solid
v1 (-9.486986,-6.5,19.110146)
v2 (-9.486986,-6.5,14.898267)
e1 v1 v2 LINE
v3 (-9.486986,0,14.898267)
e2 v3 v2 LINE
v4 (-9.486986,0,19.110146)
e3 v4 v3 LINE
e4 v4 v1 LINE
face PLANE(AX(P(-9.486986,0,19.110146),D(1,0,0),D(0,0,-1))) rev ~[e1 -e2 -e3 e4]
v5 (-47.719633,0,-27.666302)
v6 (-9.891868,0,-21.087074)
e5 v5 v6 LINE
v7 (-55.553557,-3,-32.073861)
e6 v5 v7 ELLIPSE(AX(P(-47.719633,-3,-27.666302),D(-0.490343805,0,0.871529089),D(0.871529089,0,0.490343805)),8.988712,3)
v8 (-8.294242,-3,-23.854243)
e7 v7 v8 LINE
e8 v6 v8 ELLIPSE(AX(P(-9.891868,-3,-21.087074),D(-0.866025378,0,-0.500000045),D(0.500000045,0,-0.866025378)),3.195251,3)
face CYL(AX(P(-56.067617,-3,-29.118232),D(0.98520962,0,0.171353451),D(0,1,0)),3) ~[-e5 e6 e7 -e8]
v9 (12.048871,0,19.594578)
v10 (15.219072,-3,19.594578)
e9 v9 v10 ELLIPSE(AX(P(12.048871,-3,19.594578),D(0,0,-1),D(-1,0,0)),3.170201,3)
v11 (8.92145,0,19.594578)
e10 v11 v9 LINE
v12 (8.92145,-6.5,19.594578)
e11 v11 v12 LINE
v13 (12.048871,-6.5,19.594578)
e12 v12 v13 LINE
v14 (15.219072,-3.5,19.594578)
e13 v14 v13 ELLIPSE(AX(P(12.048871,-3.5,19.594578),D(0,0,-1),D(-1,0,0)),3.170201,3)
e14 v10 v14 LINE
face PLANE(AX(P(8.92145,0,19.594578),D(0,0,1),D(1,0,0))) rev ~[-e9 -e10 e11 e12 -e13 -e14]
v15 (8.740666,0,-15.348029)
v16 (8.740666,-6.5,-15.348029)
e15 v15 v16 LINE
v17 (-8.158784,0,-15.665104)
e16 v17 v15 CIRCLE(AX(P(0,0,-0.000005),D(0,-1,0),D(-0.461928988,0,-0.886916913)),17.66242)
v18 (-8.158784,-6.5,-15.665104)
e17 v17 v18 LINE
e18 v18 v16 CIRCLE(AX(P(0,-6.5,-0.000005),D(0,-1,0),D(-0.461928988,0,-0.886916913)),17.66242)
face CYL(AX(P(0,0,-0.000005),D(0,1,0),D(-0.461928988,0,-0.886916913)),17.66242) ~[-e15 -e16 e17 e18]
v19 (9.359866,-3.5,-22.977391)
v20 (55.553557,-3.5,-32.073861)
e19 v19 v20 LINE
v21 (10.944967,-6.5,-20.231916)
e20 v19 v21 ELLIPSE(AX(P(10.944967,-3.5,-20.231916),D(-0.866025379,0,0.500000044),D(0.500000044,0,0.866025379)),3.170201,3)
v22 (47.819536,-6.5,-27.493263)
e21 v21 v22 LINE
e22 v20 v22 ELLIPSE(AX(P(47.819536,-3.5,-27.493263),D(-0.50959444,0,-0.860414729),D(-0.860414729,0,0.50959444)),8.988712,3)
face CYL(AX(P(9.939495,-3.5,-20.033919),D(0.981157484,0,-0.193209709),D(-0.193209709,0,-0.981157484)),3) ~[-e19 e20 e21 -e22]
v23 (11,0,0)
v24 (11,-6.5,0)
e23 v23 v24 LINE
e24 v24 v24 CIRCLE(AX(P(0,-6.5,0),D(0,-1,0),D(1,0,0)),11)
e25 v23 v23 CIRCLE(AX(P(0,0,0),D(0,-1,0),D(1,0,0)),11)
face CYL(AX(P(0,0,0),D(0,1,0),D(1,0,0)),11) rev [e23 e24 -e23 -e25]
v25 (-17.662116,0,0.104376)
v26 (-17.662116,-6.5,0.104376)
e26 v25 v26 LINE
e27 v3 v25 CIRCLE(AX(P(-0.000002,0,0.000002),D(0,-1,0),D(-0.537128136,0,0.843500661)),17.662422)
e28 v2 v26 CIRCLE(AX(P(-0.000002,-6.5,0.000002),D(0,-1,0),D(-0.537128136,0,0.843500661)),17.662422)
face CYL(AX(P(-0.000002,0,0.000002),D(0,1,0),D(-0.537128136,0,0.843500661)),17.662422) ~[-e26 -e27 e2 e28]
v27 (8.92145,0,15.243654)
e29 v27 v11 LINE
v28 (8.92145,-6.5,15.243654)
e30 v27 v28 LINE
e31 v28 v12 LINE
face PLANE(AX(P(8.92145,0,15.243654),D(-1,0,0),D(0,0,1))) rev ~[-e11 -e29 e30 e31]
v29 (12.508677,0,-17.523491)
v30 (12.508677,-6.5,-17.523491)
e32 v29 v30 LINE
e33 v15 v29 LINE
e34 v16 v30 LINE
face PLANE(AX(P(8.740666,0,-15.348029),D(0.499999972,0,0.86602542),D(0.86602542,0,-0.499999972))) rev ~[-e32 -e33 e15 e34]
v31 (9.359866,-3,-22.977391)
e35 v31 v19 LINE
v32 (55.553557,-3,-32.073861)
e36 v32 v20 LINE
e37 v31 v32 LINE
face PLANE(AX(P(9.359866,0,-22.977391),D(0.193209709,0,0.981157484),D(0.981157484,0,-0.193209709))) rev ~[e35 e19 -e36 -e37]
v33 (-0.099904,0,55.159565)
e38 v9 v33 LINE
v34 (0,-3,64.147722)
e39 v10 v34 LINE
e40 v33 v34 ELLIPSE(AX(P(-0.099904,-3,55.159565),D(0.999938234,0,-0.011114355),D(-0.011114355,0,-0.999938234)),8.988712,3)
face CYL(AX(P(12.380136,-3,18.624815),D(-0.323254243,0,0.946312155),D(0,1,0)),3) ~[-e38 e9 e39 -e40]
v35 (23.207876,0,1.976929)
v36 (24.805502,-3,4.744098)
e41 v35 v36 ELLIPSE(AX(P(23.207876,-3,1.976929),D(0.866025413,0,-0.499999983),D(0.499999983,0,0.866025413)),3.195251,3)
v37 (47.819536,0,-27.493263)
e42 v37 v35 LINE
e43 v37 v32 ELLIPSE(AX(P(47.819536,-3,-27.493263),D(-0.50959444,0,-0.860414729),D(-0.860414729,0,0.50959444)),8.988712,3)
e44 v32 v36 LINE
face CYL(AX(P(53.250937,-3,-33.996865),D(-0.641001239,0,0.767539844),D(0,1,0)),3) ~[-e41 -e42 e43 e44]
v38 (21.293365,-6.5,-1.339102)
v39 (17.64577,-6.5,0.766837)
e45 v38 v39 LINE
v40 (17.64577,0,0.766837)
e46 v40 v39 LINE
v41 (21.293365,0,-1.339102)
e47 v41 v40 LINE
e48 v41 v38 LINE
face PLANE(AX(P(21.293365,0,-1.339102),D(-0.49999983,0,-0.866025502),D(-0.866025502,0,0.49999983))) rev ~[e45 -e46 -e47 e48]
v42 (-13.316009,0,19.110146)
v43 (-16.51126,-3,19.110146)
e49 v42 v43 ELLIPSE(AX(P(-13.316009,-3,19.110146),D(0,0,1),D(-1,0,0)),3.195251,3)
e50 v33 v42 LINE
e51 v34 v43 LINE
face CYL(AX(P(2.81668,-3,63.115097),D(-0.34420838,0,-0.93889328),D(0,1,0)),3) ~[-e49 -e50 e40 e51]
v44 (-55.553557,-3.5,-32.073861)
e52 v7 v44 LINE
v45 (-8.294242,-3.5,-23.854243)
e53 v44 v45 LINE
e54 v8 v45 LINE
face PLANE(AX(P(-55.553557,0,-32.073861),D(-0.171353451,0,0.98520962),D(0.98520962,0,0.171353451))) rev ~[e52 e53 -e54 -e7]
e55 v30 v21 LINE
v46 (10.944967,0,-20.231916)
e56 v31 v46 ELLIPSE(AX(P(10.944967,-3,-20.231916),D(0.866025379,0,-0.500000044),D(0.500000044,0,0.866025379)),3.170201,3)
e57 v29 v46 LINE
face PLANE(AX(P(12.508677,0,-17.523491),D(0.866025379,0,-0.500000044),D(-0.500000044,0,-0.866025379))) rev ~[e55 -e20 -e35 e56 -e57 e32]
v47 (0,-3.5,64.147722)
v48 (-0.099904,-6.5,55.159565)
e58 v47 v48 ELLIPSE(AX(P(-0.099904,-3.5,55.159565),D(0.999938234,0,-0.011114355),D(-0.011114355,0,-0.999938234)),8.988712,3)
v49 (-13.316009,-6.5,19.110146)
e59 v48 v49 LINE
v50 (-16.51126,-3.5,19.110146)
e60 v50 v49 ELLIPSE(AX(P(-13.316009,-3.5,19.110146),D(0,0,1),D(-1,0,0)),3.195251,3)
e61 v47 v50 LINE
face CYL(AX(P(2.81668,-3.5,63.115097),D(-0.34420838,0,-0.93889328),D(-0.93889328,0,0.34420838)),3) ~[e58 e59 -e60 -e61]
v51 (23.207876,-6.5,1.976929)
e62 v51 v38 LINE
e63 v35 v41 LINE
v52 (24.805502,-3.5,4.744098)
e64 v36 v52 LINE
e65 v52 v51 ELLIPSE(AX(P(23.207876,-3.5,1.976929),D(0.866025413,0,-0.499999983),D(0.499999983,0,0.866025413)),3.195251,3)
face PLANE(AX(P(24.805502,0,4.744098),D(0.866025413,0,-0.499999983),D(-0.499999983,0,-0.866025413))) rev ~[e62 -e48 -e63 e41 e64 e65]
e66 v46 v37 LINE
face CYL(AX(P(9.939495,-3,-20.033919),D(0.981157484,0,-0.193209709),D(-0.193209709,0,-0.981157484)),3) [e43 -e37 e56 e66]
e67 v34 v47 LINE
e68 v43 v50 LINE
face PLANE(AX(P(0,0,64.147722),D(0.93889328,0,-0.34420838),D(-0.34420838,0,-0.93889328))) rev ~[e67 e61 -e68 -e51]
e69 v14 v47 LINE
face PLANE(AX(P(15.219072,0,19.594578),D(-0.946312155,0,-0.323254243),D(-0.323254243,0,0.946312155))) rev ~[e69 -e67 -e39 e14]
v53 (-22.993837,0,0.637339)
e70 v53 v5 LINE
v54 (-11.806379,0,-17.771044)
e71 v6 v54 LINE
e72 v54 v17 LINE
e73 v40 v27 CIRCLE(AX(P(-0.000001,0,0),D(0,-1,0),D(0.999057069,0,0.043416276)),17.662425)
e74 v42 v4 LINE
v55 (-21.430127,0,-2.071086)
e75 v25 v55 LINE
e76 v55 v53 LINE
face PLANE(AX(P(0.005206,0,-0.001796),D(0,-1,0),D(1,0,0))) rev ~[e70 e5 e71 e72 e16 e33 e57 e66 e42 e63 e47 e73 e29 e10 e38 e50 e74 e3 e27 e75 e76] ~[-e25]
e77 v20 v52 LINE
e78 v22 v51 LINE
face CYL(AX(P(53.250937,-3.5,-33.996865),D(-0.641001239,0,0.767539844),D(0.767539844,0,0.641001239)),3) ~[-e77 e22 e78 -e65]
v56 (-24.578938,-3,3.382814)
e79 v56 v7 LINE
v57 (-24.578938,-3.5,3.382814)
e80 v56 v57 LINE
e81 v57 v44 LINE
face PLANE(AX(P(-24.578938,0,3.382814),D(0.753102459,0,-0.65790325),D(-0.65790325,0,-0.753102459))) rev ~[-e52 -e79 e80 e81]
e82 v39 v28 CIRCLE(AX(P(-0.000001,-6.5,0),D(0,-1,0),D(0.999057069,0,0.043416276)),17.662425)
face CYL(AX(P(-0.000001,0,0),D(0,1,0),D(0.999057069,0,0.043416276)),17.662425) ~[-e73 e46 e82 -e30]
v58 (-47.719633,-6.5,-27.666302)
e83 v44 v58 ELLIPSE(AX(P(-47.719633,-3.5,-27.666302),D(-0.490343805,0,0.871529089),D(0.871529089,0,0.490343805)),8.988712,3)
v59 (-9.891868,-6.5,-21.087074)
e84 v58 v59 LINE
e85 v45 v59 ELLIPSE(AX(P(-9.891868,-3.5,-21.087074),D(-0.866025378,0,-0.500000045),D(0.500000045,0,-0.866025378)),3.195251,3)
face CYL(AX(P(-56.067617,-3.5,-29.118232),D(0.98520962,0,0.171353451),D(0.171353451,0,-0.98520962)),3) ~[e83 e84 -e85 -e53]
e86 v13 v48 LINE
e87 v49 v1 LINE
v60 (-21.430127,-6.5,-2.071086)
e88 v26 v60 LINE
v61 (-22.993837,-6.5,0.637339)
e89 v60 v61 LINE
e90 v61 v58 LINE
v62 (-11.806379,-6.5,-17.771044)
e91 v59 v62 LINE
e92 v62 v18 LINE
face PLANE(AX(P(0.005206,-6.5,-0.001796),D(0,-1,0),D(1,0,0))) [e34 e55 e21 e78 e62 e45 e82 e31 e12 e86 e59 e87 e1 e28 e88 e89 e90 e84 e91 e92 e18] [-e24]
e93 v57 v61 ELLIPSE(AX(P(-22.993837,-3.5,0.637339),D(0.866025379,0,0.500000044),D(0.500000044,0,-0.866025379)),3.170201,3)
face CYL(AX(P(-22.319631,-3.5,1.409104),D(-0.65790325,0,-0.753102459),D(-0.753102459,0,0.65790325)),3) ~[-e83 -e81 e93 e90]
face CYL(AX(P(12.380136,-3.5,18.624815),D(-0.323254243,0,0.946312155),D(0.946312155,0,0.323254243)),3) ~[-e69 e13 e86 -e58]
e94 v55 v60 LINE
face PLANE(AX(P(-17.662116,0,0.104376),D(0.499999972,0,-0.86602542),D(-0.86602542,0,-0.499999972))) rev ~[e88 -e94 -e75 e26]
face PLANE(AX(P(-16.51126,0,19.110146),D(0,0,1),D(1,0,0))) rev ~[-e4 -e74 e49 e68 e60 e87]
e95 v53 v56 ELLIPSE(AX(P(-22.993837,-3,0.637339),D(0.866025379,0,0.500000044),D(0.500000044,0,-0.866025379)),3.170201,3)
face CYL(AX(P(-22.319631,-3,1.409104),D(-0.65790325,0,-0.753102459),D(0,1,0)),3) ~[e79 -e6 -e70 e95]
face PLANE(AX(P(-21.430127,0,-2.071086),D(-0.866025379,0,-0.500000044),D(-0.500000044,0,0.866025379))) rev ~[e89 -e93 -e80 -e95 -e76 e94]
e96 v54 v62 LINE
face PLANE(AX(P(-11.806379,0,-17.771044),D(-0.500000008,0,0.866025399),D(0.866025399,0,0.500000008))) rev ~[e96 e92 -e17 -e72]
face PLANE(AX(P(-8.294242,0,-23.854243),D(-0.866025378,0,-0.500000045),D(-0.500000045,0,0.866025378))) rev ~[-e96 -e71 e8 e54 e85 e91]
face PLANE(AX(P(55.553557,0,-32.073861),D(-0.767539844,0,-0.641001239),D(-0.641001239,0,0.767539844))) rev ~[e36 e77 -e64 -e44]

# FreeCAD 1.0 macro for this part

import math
import FreeCAD as App
import Part
import Sketcher
Q = App.Units.Quantity


def edges_at(feature, points):
    """Names of the edges that pass closest to the given points."""
    edges = feature.Shape.Edges
    near = lambda p: min(range(len(edges)), key=lambda i: edges[i].distToShape(Part.Vertex(*p))[0])
    return sorted({f"Edge{near(p) + 1}" for p in points})

doc = App.newDocument("Part")
body = doc.addObject("PartDesign::Body", "Body")

# Sketch on XZ plane
sketch1 = body.newObject("Sketcher::SketchObject", "Sketch")
sketch1.AttachmentSupport = (doc.getObject("XZ_Plane"), [""])
sketch1.MapMode = "FlatFace"
sketch1.addGeometry([
    Part.ArcOfCircle(Part.Circle(App.Vector(0, 0, 0), App.Vector(0, 0, 1), 17.7), math.radians(-118), math.radians(-60)),  # 0
    Part.LineSegment(App.Vector(8.7, -15.3, 0), App.Vector(12.5, -17.5, 0)),  # 1
    Part.LineSegment(App.Vector(12.5, -17.5, 0), App.Vector(9.4, -23, 0)),  # 2
    Part.LineSegment(App.Vector(9.4, -23, 0), App.Vector(55.6, -32.1, 0)),  # 3
    Part.LineSegment(App.Vector(55.6, -32.1, 0), App.Vector(24.8, 4.7, 0)),  # 4
    Part.LineSegment(App.Vector(24.8, 4.7, 0), App.Vector(21.3, -1.3, 0)),  # 5
    Part.LineSegment(App.Vector(21.3, -1.3, 0), App.Vector(17.6, 0.8, 0)),  # 6
    Part.ArcOfCircle(Part.Circle(App.Vector(0, 0, 0), App.Vector(0, 0, 1), 17.7), math.radians(2), math.radians(60)),  # 7
    Part.LineSegment(App.Vector(8.9, 15.2, 0), App.Vector(8.9, 19.6, 0)),  # 8
    Part.LineSegment(App.Vector(8.9, 19.6, 0), App.Vector(15.2, 19.6, 0)),  # 9
    Part.LineSegment(App.Vector(15.2, 19.6, 0), App.Vector(0, 64.1, 0)),  # 10
    Part.LineSegment(App.Vector(0, 64.1, 0), App.Vector(-16.5, 19.1, 0)),  # 11
    Part.LineSegment(App.Vector(-16.5, 19.1, 0), App.Vector(-9.5, 19.1, 0)),  # 12
    Part.LineSegment(App.Vector(-9.5, 19.1, 0), App.Vector(-9.5, 14.9, 0)),  # 13
    Part.ArcOfCircle(Part.Circle(App.Vector(0, 0, 0), App.Vector(0, 0, 1), 17.7), math.radians(122), math.radians(180)),  # 14
    Part.LineSegment(App.Vector(-17.7, 0.1, 0), App.Vector(-21.4, -2.1, 0)),  # 15
    Part.LineSegment(App.Vector(-21.4, -2.1, 0), App.Vector(-24.6, 3.4, 0)),  # 16
    Part.LineSegment(App.Vector(-24.6, 3.4, 0), App.Vector(-55.6, -32.1, 0)),  # 17
    Part.LineSegment(App.Vector(-55.6, -32.1, 0), App.Vector(-8.3, -23.9, 0)),  # 18
    Part.LineSegment(App.Vector(-8.3, -23.9, 0), App.Vector(-11.8, -17.8, 0)),  # 19
    Part.LineSegment(App.Vector(-11.8, -17.8, 0), App.Vector(-8.2, -15.7, 0)),  # 20
    Part.Circle(App.Vector(0, 0, 0), App.Vector(0, 0, 1), 11),  # 21
], False)
sketch1.addConstraint([
    Sketcher.Constraint("Coincident", 0, 2, 1, 1),
    Sketcher.Constraint("Coincident", 1, 2, 2, 1),
    Sketcher.Constraint("Coincident", 2, 2, 3, 1),
    Sketcher.Constraint("Coincident", 3, 2, 4, 1),
    Sketcher.Constraint("Coincident", 4, 2, 5, 1),
    Sketcher.Constraint("Coincident", 5, 2, 6, 1),
    Sketcher.Constraint("Coincident", 6, 2, 7, 1),
    Sketcher.Constraint("Coincident", 7, 2, 8, 1),
    Sketcher.Constraint("Coincident", 8, 2, 9, 1),
    Sketcher.Constraint("Coincident", 9, 2, 10, 1),
    Sketcher.Constraint("Coincident", 10, 2, 11, 1),
    Sketcher.Constraint("Coincident", 11, 2, 12, 1),
    Sketcher.Constraint("Coincident", 12, 2, 13, 1),
    Sketcher.Constraint("Coincident", 13, 2, 14, 1),
    Sketcher.Constraint("Coincident", 14, 2, 15, 1),
    Sketcher.Constraint("Coincident", 15, 2, 16, 1),
    Sketcher.Constraint("Coincident", 16, 2, 17, 1),
    Sketcher.Constraint("Coincident", 17, 2, 18, 1),
    Sketcher.Constraint("Coincident", 18, 2, 19, 1),
    Sketcher.Constraint("Coincident", 19, 2, 20, 1),
    Sketcher.Constraint("Coincident", 20, 2, 0, 1),
    Sketcher.Constraint("Vertical", 8),
    Sketcher.Constraint("Horizontal", 9),
    Sketcher.Constraint("Horizontal", 12),
    Sketcher.Constraint("Vertical", 13),
    Sketcher.Constraint("Coincident", 0, 3, -1, 1),
    Sketcher.Constraint("Coincident", 7, 3, -1, 1),
    Sketcher.Constraint("Coincident", 14, 3, -1, 1),
    Sketcher.Constraint("Coincident", 21, 3, -1, 1),
    Sketcher.Constraint("Symmetric", 3, 2, 17, 2, -2),
    Sketcher.Constraint("PointOnObject", 10, 2, -2),
    Sketcher.Constraint("Perpendicular", 1, 2),
    Sketcher.Constraint("Parallel", 2, 5),
    Sketcher.Constraint("Perpendicular", 5, 6),
    Sketcher.Constraint("Perpendicular", 15, 16),
    Sketcher.Constraint("Parallel", 16, 19),
    Sketcher.Constraint("Perpendicular", 19, 20),
    Sketcher.Constraint("Equal", 3, 10),
    Sketcher.Constraint("Equal", 4, 11),
    Sketcher.Constraint("Equal", 1, 15),
    Sketcher.Constraint("Equal", 2, 16),
    Sketcher.Constraint("Equal", 10, 17),
    Sketcher.Constraint("Equal", 11, 18),
    Sketcher.Constraint("Equal", 5, 19),
    Sketcher.Constraint("Equal", 6, 20),
    Sketcher.Constraint("Diameter", 21, Q("22 mm")),
    Sketcher.Constraint("Angle", 1, Q("-29.999998 deg")),
    Sketcher.Constraint("Angle", 15, Q("-150.000002 deg")),
    Sketcher.Constraint("Radius", 0, Q("17.66242 mm")),
    Sketcher.Constraint("Radius", 7, Q("17.662425 mm")),
    Sketcher.Constraint("Radius", 14, Q("17.662422 mm")),
    Sketcher.Constraint("DistanceY", 13, 2, 13, 1, Q("4.211879 mm")),
    Sketcher.Constraint("DistanceY", 2, 2, 1, 2, Q("5.4539 mm")),
    Sketcher.Constraint("DistanceX", 0, 2, 2, 2, Q("0.6192 mm")),
    Sketcher.Constraint("DistanceY", 5, 2, 4, 2, Q("6.0832 mm")),
    Sketcher.Constraint("DistanceX", 0, 2, 5, 2, Q("12.552699 mm")),
    Sketcher.Constraint("DistanceY", 20, 2, 0, 3, Q("15.665099 mm")),
    Sketcher.Constraint("Distance", 3, Q("47.080812 mm")),
    Sketcher.Constraint("Distance", 4, Q("47.968792 mm")),
    Sketcher.Constraint("Distance", 6, Q("4.211879 mm")),
    Sketcher.Constraint("DistanceX", 9, 1, 9, 2, Q("6.297622 mm")),
    Sketcher.Constraint("DistanceX", 12, 1, 12, 2, Q("7.024274 mm")),
    Sketcher.Constraint("DistanceY", 8, 1, 8, 2, Q("4.350924 mm")),
    Sketcher.Constraint("DistanceX", -1, 1, 7, 2, Q("8.92145 mm")),
])
pad1 = body.newObject("PartDesign::Pad", "Pad")
pad1.Profile = sketch1
pad1.Length = 6.5
doc.recompute()

fillet = body.newObject("PartDesign::Fillet", "Fillet")
fillet.Base = (pad1, edges_at(pad1, [
    (-8.256, -6.5, 41.629),
    (7.61, -6.5, 41.871),
    (40.18, -6.5, -13.665),
    (32.457, -6.5, -27.526),
    (-31.924, -6.5, -27.964),
    (-40.066, -6.5, -14.346),
]))
fillet.Radius = 3
doc.recompute()

fillet2 = body.newObject("PartDesign::Fillet", "Fillet001")
fillet2.Base = (fillet, edges_at(fillet, [
    (40.18, 0, -13.665),
    (-31.924, 0, -27.964),
    (32.457, 0, -27.526),
    (-40.066, 0, -14.346),
    (-8.256, 0, 41.629),
    (7.61, 0, 41.871),
]))
fillet2.Radius = 3

doc.recompute()
